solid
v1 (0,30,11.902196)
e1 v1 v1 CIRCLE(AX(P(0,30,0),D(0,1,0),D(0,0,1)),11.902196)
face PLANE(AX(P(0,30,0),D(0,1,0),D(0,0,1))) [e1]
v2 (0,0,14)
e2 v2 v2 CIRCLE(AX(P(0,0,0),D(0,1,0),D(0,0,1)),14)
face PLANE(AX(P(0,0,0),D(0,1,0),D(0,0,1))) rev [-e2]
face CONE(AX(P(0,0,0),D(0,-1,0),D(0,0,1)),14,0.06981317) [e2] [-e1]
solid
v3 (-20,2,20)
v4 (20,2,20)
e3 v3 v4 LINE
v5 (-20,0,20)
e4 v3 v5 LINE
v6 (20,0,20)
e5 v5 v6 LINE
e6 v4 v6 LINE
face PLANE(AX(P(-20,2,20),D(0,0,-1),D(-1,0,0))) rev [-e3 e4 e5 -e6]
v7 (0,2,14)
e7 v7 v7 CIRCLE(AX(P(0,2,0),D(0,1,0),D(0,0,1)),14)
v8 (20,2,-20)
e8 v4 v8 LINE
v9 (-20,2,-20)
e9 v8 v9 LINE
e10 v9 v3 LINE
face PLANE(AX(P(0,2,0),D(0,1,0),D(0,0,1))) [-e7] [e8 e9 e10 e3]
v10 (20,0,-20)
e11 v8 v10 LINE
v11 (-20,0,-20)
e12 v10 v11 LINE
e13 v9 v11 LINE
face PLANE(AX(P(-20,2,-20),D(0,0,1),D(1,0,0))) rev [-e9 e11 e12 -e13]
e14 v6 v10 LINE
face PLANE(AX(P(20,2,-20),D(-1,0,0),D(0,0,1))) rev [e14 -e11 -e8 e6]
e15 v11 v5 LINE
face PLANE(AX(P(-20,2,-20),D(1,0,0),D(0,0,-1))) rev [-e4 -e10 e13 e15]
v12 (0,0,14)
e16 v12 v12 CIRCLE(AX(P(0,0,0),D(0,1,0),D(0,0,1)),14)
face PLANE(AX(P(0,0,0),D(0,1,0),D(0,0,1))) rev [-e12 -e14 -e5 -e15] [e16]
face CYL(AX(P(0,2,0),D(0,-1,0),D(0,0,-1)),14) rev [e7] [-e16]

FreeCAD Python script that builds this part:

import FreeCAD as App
import Part
import Sketcher

V = App.Vector


def add_polygon(sketch, points):
    """Adds a closed chain of lines whose ends are joined by coincident constraints."""
    first, n = sketch.GeometryCount, len(points)
    for a, b in zip(points, points[1:] + points[:1]):
        sketch.addGeometry(Part.LineSegment(App.Vector(*a, 0), App.Vector(*b, 0)), False)
    for i in range(n):
        sketch.addConstraint(Sketcher.Constraint("Coincident", first + i, 2, first + (i + 1) % n, 1))

doc = App.newDocument("Part")
body = doc.addObject("PartDesign::Body", "Body")

sketch1 = body.newObject("Sketcher::SketchObject", "Sketch")
sketch1.AttachmentSupport = (doc.getObject("XZ_Plane"), [""])
sketch1.MapMode = "FlatFace"
sketch1.addGeometry(Part.Circle(V(0, 0, 0), V(0, 0, 1), 14), False)
sketch1.addConstraint([
    Sketcher.Constraint("Coincident", 0, 3, -1, 1),
    Sketcher.Constraint("Diameter", 0, 28.0),
])
pad1 = body.newObject("PartDesign::Pad", "Pad")
pad1.Profile = sketch1
pad1.Length = 30
pad1.Reversed = True
pad1.TaperAngle = -4
body2 = doc.addObject("PartDesign::Body", "Body001")

sketch2 = body2.newObject("Sketcher::SketchObject", "Sketch001")
sketch2.AttachmentSupport = (doc.getObject("XZ_Plane001"), [""])
sketch2.MapMode = "FlatFace"
add_polygon(sketch2, [(-20, -20), (-20, 20), (20, 20), (20, -20)])
sketch2.addGeometry(Part.Circle(V(0, 0, 0), V(0, 0, 1), 14), False)
sketch2.addConstraint([
    Sketcher.Constraint("Vertical", 0),
    Sketcher.Constraint("Horizontal", 1),
    Sketcher.Constraint("Vertical", 2),
    Sketcher.Constraint("Horizontal", 3),
    Sketcher.Constraint("Coincident", 4, 3, -1, 1),
    Sketcher.Constraint("Symmetric", 0, 2, 2, 2, -1, 1),
    Sketcher.Constraint("Equal", 3, 0),
    Sketcher.Constraint("Diameter", 4, 28.0),
    Sketcher.Constraint("DistanceX", 1, 1, 1, 2, 40.0),
])
pad2 = body2.newObject("PartDesign::Pad", "Pad001")
pad2.Profile = sketch2
pad2.Length = 2
pad2.Reversed = True

doc.recompute()
